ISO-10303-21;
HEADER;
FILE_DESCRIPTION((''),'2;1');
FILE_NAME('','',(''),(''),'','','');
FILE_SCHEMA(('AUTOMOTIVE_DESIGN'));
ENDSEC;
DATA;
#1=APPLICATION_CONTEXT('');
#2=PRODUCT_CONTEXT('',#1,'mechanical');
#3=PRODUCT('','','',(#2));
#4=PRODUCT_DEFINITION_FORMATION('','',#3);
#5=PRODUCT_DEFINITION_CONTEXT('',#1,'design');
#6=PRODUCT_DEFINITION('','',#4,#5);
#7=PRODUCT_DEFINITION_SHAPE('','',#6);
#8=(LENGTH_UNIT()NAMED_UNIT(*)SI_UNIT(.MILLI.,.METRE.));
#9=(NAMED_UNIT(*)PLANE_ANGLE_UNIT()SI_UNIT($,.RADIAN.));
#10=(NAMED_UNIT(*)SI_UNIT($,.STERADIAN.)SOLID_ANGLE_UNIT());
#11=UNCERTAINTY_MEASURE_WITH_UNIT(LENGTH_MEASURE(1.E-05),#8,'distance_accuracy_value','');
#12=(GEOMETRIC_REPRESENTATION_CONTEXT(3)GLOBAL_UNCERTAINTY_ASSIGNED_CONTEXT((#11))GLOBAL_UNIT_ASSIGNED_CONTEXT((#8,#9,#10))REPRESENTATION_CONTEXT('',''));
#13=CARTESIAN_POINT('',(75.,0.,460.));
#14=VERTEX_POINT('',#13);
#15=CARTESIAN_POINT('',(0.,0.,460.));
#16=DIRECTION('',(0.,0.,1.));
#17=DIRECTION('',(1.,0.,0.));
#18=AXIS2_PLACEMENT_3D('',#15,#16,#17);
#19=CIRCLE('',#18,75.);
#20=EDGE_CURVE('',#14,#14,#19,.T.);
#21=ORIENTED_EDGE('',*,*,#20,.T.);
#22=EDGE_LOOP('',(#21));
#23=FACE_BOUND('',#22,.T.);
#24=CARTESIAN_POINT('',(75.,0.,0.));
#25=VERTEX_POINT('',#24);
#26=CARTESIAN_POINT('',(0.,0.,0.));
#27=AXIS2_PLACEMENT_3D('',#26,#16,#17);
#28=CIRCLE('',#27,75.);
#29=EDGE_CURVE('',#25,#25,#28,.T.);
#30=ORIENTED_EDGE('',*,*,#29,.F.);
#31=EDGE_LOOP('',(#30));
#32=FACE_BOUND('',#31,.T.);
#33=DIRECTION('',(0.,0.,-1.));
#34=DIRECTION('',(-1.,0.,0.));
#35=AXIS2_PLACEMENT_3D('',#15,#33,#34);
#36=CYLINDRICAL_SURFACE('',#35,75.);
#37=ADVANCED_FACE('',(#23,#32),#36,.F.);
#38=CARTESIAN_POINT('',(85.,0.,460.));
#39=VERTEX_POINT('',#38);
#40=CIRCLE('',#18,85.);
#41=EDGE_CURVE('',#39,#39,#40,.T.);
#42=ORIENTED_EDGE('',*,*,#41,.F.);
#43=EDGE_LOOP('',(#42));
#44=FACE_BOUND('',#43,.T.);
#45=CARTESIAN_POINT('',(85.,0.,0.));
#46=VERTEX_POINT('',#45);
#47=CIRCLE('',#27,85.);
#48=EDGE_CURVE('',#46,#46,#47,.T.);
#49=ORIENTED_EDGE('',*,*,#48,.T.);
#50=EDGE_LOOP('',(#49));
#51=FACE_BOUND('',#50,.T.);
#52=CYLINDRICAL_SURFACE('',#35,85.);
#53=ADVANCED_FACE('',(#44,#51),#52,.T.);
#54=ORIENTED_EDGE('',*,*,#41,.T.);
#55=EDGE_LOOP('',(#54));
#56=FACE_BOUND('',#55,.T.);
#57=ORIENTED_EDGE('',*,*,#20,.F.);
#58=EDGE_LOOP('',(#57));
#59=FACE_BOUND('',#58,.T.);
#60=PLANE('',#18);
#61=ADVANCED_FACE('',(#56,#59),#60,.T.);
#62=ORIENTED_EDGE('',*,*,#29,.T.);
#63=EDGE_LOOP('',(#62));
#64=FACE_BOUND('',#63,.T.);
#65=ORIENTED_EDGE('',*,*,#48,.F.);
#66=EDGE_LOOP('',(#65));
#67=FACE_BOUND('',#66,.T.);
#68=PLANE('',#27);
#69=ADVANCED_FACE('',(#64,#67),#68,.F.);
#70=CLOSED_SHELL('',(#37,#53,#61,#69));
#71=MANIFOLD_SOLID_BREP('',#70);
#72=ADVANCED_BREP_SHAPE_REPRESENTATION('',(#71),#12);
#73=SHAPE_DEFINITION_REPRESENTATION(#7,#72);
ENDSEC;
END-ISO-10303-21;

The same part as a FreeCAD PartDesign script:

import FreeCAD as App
import Part
import Sketcher
from FreeCAD import Vector
Q = App.Units.Quantity

doc = App.newDocument("Part")
body = doc.addObject("PartDesign::Body", "Body")

# Sketch on XY plane
sketch1 = doc.addObject("Sketcher::SketchObject", "Sketch")
body.addObject(sketch1)
sketch1.AttachmentSupport = (doc.XY_Plane, [""])
sketch1.MapMode = "FlatFace"
sketch1.addGeometry([
    Part.Circle(Vector(0, 0, 0), Vector(0, 0, 1), 85),
    Part.Circle(Vector(0, 0, 0), Vector(0, 0, 1), 75),
], False)
sketch1.addConstraint([
    Sketcher.Constraint("Coincident", 0, 3, -1, 1),
    Sketcher.Constraint("Coincident", 1, 3, -1, 1),
    Sketcher.Constraint("Diameter", 0, Q("170 mm")),
    Sketcher.Constraint("Diameter", 1, Q("150 mm")),
])
pad1 = doc.addObject("PartDesign::Pad", "Pad")
body.addObject(pad1)
pad1.Profile = sketch1
pad1.Length = 460

doc.recompute()
